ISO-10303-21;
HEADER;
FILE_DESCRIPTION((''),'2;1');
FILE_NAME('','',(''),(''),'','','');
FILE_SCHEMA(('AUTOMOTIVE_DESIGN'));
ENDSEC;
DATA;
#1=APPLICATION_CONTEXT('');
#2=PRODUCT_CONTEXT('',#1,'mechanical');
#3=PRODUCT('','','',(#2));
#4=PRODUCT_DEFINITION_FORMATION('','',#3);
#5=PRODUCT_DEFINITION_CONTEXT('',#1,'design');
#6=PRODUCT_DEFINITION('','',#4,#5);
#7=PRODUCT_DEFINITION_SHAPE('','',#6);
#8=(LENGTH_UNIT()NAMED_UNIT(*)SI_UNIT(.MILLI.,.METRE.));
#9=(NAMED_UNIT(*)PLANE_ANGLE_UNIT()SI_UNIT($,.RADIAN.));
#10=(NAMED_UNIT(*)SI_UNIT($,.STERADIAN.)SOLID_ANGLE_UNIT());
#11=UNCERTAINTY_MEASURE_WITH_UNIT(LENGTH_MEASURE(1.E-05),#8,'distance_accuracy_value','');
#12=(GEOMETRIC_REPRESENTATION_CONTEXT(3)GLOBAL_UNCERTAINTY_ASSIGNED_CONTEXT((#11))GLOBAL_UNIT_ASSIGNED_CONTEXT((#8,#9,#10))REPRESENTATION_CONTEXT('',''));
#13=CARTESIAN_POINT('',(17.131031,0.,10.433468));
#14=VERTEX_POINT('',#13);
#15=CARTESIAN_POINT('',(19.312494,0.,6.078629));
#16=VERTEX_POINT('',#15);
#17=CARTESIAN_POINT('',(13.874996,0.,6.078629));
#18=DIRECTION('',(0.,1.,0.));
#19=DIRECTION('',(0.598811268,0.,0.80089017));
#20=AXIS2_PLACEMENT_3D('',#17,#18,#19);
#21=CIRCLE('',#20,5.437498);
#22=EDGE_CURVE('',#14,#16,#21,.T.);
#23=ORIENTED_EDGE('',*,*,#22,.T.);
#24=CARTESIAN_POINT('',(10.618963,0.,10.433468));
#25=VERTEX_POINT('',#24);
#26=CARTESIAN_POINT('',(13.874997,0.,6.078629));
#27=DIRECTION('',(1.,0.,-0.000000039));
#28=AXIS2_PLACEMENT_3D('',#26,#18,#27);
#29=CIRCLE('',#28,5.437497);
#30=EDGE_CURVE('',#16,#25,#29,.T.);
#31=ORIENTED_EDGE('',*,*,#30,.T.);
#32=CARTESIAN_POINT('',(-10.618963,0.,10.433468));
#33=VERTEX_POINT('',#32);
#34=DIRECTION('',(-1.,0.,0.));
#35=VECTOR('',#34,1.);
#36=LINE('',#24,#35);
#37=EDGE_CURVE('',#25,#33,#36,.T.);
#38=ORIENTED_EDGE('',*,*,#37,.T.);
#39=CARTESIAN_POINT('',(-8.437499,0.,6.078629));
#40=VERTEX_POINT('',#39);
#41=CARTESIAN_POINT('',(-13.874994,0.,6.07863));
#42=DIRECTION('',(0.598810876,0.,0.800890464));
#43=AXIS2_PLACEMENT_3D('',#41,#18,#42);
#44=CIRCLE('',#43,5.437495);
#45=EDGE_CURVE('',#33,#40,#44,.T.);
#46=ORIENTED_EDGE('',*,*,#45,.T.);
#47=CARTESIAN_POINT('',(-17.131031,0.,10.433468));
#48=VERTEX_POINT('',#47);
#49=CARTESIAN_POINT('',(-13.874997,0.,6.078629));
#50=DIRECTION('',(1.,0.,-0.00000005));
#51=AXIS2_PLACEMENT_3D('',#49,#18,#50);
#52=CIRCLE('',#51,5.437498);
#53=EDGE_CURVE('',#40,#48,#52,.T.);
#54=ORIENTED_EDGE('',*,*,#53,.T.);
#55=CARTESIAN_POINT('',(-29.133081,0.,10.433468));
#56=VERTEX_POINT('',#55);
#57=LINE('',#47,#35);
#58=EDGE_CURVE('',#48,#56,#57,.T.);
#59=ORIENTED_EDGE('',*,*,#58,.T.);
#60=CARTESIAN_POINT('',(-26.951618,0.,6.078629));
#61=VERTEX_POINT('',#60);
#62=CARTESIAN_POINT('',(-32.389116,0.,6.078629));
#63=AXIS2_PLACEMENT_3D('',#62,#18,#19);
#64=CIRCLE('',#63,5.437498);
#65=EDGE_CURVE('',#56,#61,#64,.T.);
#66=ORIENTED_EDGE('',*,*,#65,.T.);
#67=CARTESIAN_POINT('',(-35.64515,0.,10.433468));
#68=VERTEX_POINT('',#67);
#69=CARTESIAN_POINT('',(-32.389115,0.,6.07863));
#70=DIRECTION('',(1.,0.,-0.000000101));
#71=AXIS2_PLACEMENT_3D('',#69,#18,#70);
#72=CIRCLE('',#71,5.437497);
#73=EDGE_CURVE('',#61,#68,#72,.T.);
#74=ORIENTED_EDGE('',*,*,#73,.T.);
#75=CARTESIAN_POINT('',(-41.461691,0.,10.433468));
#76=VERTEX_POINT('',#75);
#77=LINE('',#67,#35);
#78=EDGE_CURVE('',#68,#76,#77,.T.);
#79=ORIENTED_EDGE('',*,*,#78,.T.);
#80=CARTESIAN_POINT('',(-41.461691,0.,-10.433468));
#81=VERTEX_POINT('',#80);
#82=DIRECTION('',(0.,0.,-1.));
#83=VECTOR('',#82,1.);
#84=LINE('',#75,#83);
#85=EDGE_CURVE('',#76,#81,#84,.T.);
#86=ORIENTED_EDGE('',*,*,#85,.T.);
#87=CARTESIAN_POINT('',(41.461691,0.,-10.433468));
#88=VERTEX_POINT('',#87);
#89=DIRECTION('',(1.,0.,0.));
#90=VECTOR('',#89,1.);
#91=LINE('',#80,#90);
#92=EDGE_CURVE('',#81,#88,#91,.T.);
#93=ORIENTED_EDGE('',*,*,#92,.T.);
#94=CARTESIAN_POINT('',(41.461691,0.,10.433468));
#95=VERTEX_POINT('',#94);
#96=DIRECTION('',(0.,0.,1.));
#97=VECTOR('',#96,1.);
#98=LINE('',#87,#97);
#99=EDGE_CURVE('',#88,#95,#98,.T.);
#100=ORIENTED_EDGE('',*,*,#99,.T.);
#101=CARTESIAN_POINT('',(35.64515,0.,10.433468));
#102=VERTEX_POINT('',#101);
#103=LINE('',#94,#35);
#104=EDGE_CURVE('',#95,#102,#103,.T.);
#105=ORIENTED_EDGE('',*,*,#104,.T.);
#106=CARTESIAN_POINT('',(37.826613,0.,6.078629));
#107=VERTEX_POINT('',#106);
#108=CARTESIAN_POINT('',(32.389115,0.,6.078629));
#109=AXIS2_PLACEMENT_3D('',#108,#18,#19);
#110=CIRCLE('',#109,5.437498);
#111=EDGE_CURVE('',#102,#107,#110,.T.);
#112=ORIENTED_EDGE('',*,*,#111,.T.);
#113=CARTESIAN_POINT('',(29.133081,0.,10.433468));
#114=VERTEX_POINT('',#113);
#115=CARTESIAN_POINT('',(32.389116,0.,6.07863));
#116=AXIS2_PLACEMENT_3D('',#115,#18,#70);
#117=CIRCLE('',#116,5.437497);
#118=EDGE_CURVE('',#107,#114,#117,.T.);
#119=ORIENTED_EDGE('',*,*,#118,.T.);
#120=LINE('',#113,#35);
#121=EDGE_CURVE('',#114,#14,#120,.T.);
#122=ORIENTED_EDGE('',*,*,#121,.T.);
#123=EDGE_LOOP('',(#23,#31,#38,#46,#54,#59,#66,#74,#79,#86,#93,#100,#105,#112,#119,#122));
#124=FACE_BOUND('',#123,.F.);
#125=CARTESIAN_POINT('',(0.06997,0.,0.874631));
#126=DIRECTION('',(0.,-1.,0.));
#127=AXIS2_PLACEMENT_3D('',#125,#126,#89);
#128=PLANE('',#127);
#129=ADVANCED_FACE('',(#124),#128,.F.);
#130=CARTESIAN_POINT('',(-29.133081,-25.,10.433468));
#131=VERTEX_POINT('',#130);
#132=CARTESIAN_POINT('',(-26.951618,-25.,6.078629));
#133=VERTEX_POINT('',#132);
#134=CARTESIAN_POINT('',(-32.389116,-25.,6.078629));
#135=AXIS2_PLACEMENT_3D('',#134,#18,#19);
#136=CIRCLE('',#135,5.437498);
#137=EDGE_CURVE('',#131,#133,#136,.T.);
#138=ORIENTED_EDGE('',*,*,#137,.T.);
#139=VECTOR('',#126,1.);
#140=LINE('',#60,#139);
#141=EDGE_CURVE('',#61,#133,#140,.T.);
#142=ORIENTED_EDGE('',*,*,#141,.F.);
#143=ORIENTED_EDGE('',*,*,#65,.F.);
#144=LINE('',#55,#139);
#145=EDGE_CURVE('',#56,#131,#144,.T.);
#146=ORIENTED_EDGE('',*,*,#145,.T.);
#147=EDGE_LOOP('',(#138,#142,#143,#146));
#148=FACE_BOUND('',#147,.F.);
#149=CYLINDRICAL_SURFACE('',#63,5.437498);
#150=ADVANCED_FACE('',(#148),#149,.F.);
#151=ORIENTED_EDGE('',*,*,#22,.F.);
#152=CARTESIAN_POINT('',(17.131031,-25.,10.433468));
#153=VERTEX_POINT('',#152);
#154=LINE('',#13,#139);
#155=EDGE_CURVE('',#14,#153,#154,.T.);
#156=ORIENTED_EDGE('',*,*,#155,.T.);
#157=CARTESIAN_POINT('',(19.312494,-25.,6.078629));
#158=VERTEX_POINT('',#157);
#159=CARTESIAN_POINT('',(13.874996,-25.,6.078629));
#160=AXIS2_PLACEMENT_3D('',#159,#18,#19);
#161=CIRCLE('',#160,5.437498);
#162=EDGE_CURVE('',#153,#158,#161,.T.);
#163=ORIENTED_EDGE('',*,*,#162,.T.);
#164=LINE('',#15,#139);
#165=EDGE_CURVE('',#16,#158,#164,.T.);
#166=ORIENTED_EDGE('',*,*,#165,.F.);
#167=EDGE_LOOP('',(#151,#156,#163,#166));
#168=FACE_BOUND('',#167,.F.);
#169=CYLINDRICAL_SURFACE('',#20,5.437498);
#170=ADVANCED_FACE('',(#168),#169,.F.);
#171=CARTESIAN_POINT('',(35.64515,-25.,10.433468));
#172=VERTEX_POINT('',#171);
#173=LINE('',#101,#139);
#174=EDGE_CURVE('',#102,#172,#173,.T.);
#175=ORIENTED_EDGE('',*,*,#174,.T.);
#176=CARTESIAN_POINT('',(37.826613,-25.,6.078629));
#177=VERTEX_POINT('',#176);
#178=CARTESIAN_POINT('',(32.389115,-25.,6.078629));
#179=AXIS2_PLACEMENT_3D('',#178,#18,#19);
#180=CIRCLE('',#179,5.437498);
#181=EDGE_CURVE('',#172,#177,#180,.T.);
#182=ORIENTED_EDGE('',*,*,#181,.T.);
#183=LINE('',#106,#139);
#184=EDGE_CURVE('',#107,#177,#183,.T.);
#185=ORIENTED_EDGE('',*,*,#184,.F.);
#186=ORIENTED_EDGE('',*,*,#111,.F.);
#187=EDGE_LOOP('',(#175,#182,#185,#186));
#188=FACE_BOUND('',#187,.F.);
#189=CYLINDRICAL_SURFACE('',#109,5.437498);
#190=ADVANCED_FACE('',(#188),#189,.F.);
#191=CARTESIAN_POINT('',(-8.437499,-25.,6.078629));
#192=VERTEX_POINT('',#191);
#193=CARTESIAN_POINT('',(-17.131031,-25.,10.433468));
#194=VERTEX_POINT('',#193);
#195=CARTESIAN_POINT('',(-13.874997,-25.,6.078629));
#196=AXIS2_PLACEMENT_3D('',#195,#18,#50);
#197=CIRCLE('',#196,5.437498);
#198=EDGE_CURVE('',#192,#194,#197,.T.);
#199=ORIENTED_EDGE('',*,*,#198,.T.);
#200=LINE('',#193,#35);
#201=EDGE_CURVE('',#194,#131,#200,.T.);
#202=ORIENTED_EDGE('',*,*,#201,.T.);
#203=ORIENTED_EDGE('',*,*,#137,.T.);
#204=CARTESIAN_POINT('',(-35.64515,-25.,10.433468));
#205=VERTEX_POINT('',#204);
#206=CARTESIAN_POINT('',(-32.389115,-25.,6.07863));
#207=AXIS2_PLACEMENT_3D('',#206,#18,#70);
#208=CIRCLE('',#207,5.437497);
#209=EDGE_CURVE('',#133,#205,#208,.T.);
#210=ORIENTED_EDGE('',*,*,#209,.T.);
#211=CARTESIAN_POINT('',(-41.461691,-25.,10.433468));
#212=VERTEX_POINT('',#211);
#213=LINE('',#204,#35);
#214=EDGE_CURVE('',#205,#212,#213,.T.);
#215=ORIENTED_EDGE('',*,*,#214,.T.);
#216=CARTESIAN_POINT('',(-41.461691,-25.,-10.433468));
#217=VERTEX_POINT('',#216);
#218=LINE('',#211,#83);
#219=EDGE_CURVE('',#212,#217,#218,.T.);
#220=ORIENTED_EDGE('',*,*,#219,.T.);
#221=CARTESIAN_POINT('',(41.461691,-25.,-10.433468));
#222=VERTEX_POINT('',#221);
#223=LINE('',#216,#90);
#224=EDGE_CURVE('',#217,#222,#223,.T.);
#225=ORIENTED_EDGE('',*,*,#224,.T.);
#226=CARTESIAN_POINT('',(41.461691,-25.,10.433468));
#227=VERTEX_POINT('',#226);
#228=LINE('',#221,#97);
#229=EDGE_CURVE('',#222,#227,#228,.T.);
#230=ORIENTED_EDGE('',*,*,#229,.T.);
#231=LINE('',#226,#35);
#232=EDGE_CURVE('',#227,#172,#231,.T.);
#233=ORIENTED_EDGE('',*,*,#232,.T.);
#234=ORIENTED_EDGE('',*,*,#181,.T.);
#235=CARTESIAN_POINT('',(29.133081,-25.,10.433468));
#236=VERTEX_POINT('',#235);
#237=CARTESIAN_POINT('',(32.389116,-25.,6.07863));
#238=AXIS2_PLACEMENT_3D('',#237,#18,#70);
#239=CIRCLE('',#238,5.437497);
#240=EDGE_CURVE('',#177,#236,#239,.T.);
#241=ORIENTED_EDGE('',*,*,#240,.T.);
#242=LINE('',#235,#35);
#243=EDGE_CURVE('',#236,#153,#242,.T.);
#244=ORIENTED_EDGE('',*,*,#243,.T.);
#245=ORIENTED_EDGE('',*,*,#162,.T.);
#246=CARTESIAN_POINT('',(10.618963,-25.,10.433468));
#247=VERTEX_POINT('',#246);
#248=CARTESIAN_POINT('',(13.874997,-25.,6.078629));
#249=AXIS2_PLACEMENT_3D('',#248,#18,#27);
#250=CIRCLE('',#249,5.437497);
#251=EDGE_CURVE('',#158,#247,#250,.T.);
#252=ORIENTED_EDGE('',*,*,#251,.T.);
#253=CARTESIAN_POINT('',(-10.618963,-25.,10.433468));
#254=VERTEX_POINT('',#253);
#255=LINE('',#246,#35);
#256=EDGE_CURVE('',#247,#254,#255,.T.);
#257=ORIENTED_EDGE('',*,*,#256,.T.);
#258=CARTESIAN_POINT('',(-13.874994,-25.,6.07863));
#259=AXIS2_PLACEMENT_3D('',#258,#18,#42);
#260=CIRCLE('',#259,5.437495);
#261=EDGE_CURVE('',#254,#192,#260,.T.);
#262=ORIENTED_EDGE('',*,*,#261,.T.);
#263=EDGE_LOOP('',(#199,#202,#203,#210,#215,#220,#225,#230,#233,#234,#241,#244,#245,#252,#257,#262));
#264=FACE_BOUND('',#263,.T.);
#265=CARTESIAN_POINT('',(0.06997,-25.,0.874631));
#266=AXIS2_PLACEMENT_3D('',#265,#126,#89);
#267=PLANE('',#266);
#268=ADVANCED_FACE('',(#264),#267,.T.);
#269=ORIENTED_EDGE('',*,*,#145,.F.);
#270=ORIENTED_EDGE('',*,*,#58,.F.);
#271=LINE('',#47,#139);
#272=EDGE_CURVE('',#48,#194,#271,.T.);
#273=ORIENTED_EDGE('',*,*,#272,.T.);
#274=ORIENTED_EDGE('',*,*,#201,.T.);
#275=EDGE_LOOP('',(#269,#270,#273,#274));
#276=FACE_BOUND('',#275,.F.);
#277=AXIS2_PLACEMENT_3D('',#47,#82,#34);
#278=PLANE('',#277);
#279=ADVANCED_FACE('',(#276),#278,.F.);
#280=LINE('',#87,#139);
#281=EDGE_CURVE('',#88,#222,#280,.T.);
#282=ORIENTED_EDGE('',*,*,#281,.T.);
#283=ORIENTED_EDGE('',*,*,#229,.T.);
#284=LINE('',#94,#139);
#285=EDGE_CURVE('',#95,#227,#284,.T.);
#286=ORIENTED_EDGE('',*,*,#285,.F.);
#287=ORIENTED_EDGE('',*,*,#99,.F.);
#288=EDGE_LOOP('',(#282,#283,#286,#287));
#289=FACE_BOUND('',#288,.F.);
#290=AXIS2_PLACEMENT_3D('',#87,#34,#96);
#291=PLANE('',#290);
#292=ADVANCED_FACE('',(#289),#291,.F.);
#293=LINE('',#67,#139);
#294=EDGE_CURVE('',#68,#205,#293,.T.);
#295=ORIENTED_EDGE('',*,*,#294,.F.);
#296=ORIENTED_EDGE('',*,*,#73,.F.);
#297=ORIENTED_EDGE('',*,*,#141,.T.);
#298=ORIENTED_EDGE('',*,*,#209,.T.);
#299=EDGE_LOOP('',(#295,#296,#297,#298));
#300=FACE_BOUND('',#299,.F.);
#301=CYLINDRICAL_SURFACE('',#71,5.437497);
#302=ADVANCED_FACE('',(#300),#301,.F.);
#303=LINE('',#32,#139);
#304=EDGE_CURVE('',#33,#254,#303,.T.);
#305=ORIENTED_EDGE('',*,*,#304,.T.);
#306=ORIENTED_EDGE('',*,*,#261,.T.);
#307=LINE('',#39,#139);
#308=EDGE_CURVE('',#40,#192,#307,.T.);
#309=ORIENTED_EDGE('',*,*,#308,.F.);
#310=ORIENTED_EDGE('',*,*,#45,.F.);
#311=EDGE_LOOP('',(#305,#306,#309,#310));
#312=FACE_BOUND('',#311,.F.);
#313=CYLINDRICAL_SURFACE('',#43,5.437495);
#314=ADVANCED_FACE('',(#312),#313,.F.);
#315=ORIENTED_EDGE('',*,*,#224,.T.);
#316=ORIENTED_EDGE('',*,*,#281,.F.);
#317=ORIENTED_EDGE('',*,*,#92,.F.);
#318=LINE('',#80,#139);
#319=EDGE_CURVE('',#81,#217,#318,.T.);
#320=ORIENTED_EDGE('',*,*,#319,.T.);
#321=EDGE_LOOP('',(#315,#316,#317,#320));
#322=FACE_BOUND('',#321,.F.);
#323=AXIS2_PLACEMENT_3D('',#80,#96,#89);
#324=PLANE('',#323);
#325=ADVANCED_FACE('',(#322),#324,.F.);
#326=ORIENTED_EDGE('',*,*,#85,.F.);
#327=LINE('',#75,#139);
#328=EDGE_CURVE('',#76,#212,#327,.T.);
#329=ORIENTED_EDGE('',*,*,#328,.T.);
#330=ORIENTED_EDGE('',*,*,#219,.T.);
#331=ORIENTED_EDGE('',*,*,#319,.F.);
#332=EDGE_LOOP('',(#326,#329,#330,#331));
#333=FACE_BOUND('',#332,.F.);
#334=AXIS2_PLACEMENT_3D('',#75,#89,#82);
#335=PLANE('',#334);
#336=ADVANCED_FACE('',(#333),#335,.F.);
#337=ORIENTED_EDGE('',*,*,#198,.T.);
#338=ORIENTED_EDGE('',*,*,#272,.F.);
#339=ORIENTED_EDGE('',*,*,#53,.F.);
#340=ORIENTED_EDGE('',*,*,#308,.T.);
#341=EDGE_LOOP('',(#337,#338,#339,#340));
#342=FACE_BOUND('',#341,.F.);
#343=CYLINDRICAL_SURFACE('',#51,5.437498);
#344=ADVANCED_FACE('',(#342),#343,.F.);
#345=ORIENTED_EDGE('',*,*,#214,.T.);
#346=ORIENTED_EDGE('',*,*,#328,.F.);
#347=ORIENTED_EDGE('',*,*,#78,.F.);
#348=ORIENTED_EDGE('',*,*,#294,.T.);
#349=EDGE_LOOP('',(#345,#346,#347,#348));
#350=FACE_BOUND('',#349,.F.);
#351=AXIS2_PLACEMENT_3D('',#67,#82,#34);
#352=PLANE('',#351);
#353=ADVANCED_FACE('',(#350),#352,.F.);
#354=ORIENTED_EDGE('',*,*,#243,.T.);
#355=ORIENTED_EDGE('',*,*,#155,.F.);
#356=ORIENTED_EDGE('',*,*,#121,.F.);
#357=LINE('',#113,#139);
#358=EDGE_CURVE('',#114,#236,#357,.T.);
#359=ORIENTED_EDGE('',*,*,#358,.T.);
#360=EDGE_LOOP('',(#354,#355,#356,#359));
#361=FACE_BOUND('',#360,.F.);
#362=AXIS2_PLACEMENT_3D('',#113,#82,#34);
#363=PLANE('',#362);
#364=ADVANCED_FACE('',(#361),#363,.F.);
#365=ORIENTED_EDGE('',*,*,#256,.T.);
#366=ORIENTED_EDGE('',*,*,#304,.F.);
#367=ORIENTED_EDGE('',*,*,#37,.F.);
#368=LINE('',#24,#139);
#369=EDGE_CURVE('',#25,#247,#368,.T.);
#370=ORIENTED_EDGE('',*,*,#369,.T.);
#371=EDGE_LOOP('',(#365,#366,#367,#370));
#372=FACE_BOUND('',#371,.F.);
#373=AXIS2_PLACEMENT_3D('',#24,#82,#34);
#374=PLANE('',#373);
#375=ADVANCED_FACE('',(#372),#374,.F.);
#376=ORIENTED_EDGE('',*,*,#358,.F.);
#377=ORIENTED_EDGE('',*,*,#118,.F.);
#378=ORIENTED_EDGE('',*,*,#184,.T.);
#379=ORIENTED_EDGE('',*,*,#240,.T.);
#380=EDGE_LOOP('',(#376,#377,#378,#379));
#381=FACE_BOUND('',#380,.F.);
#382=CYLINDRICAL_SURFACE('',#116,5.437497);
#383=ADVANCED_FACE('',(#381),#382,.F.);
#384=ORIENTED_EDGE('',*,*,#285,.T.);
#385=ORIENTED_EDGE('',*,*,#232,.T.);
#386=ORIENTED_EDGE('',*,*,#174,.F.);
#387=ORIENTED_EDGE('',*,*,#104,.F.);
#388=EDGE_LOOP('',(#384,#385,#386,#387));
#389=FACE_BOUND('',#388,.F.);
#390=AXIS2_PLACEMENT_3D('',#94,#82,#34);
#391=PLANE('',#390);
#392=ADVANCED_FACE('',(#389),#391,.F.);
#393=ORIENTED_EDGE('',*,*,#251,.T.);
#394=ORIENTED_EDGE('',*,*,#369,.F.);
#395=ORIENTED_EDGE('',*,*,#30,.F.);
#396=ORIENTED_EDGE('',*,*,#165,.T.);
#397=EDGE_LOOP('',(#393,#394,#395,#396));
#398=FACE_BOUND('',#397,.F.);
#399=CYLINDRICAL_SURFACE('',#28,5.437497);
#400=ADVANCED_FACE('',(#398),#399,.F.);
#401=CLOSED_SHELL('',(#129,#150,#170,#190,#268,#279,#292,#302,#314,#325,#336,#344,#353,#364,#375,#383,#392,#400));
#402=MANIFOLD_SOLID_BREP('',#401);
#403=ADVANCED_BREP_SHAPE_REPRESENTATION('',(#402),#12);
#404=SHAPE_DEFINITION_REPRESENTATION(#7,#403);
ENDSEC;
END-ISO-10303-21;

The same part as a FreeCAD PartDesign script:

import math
import FreeCAD as App
import Part
import Sketcher

doc = App.newDocument("Part")
body = doc.addObject("PartDesign::Body", "Body")

# Sketch on XZ plane
sketch1 = body.newObject("Sketcher::SketchObject", "Sketch")
sketch1.AttachmentSupport = (doc.getObject("XZ_Plane"), [""])
sketch1.MapMode = "FlatFace"
sketch1.addGeometry(Part.LineSegment(App.Vector(-41.5, -10.4, 0), App.Vector(41.5, -10.4, 0)), False)
sketch1.addGeometry(Part.LineSegment(App.Vector(41.5, -10.4, 0), App.Vector(41.5, 10.4, 0)), False)
sketch1.addGeometry(Part.LineSegment(App.Vector(41.5, 10.4, 0), App.Vector(35.6, 10.4, 0)), False)
sketch1.addGeometry(Part.ArcOfCircle(Part.Circle(App.Vector(32.4, 6.1, 0), App.Vector(0, 0, 1), 5.4), math.radians(0), math.radians(53)), False)
sketch1.addGeometry(Part.ArcOfCircle(Part.Circle(App.Vector(32.4, 6.1, 0), App.Vector(0, 0, 1), 5.4), math.radians(127), math.radians(360)), False)
sketch1.addGeometry(Part.LineSegment(App.Vector(29.1, 10.4, 0), App.Vector(17.1, 10.4, 0)), False)
sketch1.addGeometry(Part.ArcOfCircle(Part.Circle(App.Vector(13.9, 6.1, 0), App.Vector(0, 0, 1), 5.4), math.radians(0), math.radians(53)), False)
sketch1.addGeometry(Part.ArcOfCircle(Part.Circle(App.Vector(13.9, 6.1, 0), App.Vector(0, 0, 1), 5.4), math.radians(127), math.radians(360)), False)
sketch1.addGeometry(Part.LineSegment(App.Vector(10.6, 10.4, 0), App.Vector(-10.6, 10.4, 0)), False)
sketch1.addGeometry(Part.ArcOfCircle(Part.Circle(App.Vector(-13.9, 6.1, 0), App.Vector(0, 0, 1), 5.4), math.radians(0), math.radians(53)), False)
sketch1.addGeometry(Part.ArcOfCircle(Part.Circle(App.Vector(-13.9, 6.1, 0), App.Vector(0, 0, 1), 5.4), math.radians(127), math.radians(360)), False)
sketch1.addGeometry(Part.LineSegment(App.Vector(-17.1, 10.4, 0), App.Vector(-29.1, 10.4, 0)), False)
sketch1.addGeometry(Part.ArcOfCircle(Part.Circle(App.Vector(-32.4, 6.1, 0), App.Vector(0, 0, 1), 5.4), math.radians(0), math.radians(53)), False)
sketch1.addGeometry(Part.ArcOfCircle(Part.Circle(App.Vector(-32.4, 6.1, 0), App.Vector(0, 0, 1), 5.4), math.radians(127), math.radians(360)), False)
sketch1.addGeometry(Part.LineSegment(App.Vector(-35.6, 10.4, 0), App.Vector(-41.5, 10.4, 0)), False)
sketch1.addGeometry(Part.LineSegment(App.Vector(-41.5, 10.4, 0), App.Vector(-41.5, -10.4, 0)), False)
sketch1.addConstraint(Sketcher.Constraint("Coincident", 0, 2, 1, 1))
sketch1.addConstraint(Sketcher.Constraint("Coincident", 1, 2, 2, 1))
sketch1.addConstraint(Sketcher.Constraint("Coincident", 2, 2, 3, 2))
sketch1.addConstraint(Sketcher.Constraint("Tangent", 3, 1, 4, 2))
sketch1.addConstraint(Sketcher.Constraint("Coincident", 4, 1, 5, 1))
sketch1.addConstraint(Sketcher.Constraint("Coincident", 5, 2, 6, 2))
sketch1.addConstraint(Sketcher.Constraint("Tangent", 6, 1, 7, 2))
sketch1.addConstraint(Sketcher.Constraint("Coincident", 7, 1, 8, 1))
sketch1.addConstraint(Sketcher.Constraint("Coincident", 8, 2, 9, 2))
sketch1.addConstraint(Sketcher.Constraint("Tangent", 9, 1, 10, 2))
sketch1.addConstraint(Sketcher.Constraint("Coincident", 10, 1, 11, 1))
sketch1.addConstraint(Sketcher.Constraint("Coincident", 11, 2, 12, 2))
sketch1.addConstraint(Sketcher.Constraint("Tangent", 12, 1, 13, 2))
sketch1.addConstraint(Sketcher.Constraint("Coincident", 13, 1, 14, 1))
sketch1.addConstraint(Sketcher.Constraint("Coincident", 14, 2, 15, 1))
sketch1.addConstraint(Sketcher.Constraint("Coincident", 15, 2, 0, 1))
sketch1.addConstraint(Sketcher.Constraint("Horizontal", 0))
sketch1.addConstraint(Sketcher.Constraint("Vertical", 1))
sketch1.addConstraint(Sketcher.Constraint("Horizontal", 2))
sketch1.addConstraint(Sketcher.Constraint("Horizontal", 5))
sketch1.addConstraint(Sketcher.Constraint("Horizontal", 8))
sketch1.addConstraint(Sketcher.Constraint("Horizontal", 11))
sketch1.addConstraint(Sketcher.Constraint("Horizontal", 14))
sketch1.addConstraint(Sketcher.Constraint("Vertical", 15))
sketch1.addConstraint(Sketcher.Constraint("Equal", 3, 4))
sketch1.addConstraint(Sketcher.Constraint("Equal", 4, 6))
sketch1.addConstraint(Sketcher.Constraint("Equal", 6, 7))
sketch1.addConstraint(Sketcher.Constraint("Equal", 7, 9))
sketch1.addConstraint(Sketcher.Constraint("Equal", 7, 10))
sketch1.addConstraint(Sketcher.Constraint("Equal", 10, 12))
sketch1.addConstraint(Sketcher.Constraint("Equal", 12, 13))
sketch1.addConstraint(Sketcher.Constraint("Symmetric", 0, 2, 14, 2, -1, 1))
sketch1.addConstraint(Sketcher.Constraint("Symmetric", 6, 3, 9, 3, -2))
sketch1.addConstraint(Sketcher.Constraint("Symmetric", 3, 3, 12, 3, -2))
sketch1.addConstraint(Sketcher.Constraint("Horizontal", 4, 3, 6, 3))
sketch1.addConstraint(Sketcher.Constraint("Horizontal", 13, 3, 3, 1))
sketch1.addConstraint(Sketcher.Constraint("Horizontal", 2, 2, 4, 1))
sketch1.addConstraint(Sketcher.Constraint("Horizontal", 3, 1, 6, 1))
sketch1.addConstraint(Sketcher.Constraint("Horizontal", 5, 2, 7, 1))
sketch1.addConstraint(Sketcher.Constraint("Horizontal", 6, 1, 9, 1))
sketch1.addConstraint(Sketcher.Constraint("Horizontal", 8, 2, 10, 1))
sketch1.addConstraint(Sketcher.Constraint("Horizontal", 9, 1, 12, 1))
sketch1.addConstraint(Sketcher.Constraint("Horizontal", 11, 2, 13, 1))
sketch1.addConstraint(Sketcher.Constraint("Radius", 3, 5.437498))
sketch1.addConstraint(Sketcher.Constraint("DistanceX", 2, 2, 2, 1, 5.816541))
sketch1.addConstraint(Sketcher.Constraint("DistanceX", 5, 2, 5, 1, 12.00205))
sketch1.addConstraint(Sketcher.Constraint("DistanceX", 9, 1, -1, 1, 8.437499))
sketch1.addConstraint(Sketcher.Constraint("DistanceX", 0, 1, 0, 2, 82.923382))
sketch1.addConstraint(Sketcher.Constraint("DistanceY", 1, 1, 1, 2, 20.866936))
pad1 = body.newObject("PartDesign::Pad", "Pad")
pad1.Profile = sketch1
pad1.Length = 25

doc.recompute()
